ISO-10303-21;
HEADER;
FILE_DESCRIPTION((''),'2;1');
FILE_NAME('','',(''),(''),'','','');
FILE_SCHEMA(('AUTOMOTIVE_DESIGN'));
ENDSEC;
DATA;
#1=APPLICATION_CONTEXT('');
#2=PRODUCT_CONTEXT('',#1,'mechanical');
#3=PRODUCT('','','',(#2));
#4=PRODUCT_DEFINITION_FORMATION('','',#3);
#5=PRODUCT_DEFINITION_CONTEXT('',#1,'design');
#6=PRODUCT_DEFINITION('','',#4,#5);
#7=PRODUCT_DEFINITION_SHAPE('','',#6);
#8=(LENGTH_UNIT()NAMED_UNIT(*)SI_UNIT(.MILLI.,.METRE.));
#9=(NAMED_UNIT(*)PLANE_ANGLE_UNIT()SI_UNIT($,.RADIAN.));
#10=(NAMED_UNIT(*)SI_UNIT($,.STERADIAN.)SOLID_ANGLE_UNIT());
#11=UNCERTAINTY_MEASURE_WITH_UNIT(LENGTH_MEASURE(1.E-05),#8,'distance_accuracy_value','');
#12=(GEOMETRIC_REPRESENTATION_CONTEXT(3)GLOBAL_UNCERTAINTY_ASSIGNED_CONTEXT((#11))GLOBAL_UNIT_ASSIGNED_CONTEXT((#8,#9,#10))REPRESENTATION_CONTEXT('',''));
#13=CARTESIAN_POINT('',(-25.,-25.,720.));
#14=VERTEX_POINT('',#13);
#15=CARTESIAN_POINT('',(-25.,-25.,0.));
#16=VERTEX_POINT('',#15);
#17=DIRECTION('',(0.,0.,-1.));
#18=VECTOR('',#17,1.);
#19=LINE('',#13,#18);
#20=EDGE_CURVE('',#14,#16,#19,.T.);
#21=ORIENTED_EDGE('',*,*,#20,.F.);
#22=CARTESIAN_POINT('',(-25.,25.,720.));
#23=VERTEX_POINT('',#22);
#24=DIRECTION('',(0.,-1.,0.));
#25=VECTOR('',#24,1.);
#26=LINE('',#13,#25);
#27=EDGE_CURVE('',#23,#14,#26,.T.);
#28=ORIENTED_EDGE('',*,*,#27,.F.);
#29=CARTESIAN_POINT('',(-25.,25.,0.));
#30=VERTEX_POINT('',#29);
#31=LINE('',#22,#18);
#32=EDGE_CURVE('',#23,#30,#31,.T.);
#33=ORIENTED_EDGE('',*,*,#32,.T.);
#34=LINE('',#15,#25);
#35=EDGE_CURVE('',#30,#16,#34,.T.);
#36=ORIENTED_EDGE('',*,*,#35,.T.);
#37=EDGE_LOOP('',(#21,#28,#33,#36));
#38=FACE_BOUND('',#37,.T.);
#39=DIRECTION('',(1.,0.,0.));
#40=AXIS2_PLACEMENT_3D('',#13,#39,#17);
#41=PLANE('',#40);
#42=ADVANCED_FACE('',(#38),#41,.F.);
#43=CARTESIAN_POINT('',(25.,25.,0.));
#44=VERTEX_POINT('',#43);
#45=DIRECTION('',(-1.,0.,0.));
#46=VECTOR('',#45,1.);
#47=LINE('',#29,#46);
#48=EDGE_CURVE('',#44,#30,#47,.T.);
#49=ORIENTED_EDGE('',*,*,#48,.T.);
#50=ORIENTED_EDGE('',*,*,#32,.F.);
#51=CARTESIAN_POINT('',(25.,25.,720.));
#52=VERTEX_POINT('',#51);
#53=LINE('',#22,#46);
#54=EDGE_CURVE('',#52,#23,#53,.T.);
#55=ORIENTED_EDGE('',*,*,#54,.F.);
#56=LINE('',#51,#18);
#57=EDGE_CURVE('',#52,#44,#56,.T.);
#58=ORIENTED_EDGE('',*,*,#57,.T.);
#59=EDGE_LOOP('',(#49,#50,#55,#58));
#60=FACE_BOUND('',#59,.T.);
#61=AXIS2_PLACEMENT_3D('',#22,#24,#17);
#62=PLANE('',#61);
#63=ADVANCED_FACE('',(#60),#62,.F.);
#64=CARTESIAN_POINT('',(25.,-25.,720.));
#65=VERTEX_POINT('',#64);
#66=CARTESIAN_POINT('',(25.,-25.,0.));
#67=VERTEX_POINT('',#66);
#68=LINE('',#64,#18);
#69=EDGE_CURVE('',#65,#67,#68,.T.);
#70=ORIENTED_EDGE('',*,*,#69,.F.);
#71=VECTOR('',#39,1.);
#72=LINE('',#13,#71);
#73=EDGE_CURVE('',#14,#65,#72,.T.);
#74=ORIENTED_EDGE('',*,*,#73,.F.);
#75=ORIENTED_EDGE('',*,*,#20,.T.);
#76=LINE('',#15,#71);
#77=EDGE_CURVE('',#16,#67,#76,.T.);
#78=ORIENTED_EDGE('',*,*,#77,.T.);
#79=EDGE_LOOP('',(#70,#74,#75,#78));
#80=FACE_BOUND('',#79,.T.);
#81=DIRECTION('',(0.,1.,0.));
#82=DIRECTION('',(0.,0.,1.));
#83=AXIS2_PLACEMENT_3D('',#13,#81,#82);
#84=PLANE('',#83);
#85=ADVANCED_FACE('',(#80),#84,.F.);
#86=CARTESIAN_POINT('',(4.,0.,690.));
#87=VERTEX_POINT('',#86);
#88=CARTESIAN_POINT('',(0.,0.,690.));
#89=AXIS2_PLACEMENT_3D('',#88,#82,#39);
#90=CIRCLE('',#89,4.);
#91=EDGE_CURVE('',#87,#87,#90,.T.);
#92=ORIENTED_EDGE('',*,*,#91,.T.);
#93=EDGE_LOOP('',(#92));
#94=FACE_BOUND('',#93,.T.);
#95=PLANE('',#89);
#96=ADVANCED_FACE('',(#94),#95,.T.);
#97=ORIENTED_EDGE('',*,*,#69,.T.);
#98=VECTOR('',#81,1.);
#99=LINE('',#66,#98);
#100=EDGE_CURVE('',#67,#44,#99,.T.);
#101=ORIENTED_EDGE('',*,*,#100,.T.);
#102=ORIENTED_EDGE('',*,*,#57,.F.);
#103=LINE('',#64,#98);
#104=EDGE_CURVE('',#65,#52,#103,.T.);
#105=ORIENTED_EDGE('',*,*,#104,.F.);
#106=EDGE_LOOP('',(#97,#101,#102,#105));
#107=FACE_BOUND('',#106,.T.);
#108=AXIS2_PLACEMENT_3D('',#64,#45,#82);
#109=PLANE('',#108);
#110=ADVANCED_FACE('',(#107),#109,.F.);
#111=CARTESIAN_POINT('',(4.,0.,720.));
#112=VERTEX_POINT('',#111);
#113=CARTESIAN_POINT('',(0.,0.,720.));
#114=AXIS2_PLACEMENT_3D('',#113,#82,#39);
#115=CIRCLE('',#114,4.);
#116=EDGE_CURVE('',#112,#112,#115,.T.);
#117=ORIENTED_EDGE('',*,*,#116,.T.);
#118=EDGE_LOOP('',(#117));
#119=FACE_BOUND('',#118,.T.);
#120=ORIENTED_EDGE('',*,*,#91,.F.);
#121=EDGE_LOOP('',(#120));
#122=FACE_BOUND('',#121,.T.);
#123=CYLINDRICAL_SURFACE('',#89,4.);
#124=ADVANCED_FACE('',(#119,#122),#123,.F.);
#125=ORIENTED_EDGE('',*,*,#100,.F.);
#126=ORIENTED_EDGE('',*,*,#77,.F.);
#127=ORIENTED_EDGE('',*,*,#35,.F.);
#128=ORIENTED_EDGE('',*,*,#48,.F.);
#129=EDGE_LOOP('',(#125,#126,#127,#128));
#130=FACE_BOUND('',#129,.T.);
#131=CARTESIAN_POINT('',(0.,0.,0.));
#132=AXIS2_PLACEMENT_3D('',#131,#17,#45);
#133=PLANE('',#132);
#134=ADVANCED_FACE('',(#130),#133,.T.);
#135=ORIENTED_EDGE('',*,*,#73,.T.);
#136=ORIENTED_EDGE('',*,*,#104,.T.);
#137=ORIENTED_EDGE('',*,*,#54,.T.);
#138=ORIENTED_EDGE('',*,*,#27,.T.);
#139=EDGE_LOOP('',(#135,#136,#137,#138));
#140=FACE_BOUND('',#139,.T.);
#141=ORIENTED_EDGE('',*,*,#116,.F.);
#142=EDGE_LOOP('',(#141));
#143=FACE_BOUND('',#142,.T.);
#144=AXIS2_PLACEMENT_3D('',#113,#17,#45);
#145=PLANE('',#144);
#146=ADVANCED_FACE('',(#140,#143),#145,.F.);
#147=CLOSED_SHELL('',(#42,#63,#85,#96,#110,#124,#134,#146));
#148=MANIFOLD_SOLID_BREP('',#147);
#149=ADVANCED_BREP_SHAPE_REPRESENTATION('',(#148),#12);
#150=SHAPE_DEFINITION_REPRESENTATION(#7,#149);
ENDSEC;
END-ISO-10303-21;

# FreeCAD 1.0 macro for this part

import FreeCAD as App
import Part
import Sketcher

V = App.Vector


def add_polygon(sketch, points):
    """Adds a closed chain of lines whose ends are joined by coincident constraints."""
    first, n = sketch.GeometryCount, len(points)
    for a, b in zip(points, points[1:] + points[:1]):
        sketch.addGeometry(Part.LineSegment(App.Vector(*a, 0), App.Vector(*b, 0)), False)
    for i in range(n):
        sketch.addConstraint(Sketcher.Constraint("Coincident", first + i, 2, first + (i + 1) % n, 1))

doc = App.newDocument("Part")
params = doc.addObject("Spreadsheet::Sheet", "Params")
for row, (alias, value) in enumerate([
    ("sketch1_width", "50 mm"),
    ("pad1_length", "720 mm"),
    ("sketch2_diameter", "8 mm"),
    ("pocket1_length", "30 mm"),
    ("sketch3_width", "50 mm"),
    ("pad2_length", "720 mm"),
    ("sketch4_diameter", "8 mm"),
    ("pocket2_length", "30 mm"),
], start=1):
    params.set(f"A{row}", alias)
    params.set(f"B{row}", "=" + value)
    params.setAlias(f"B{row}", alias)

body = doc.addObject("PartDesign::Body", "Body")

sketch1 = doc.addObject("Sketcher::SketchObject", "Sketch")
body.addObject(sketch1)
sketch1.AttachmentSupport = (doc.XY_Plane, [""])
sketch1.MapMode = "FlatFace"
add_polygon(sketch1, [(-25, 25), (-25, -25), (25, -25), (25, 25)])
sketch1.addConstraint(Sketcher.Constraint("Vertical", 0))
sketch1.addConstraint(Sketcher.Constraint("Horizontal", 1))
sketch1.addConstraint(Sketcher.Constraint("Vertical", 2))
sketch1.addConstraint(Sketcher.Constraint("Horizontal", 3))
sketch1.addConstraint(Sketcher.Constraint("Symmetric", 0, 2, 2, 2, -1, 1))
sketch1.addConstraint(Sketcher.Constraint("Equal", 3, 0))
sketch1.addConstraint(Sketcher.Constraint("DistanceX", 1, 1, 1, 2, 50.0))
sketch1.setExpression("Constraints[10]", "Params.sketch1_width")
pad1 = doc.addObject("PartDesign::Pad", "Pad")
body.addObject(pad1)
pad1.Profile = sketch1
pad1.setExpression("Length", "Params.pad1_length")

sketch2 = doc.addObject("Sketcher::SketchObject", "Sketch001")
body.addObject(sketch2)
sketch2.AttachmentSupport = (doc.XY_Plane, [""])
sketch2.MapMode = "FlatFace"
sketch2.AttachmentOffset = App.Placement(V(0, 0, 720), App.Rotation())
sketch2.addGeometry(Part.Circle(V(0, 0, 0), V(0, 0, 1), 4), False)
sketch2.addConstraint(Sketcher.Constraint("Coincident", 0, 3, -1, 1))
sketch2.addConstraint(Sketcher.Constraint("Diameter", 0, 8.0))
sketch2.setExpression("Constraints[1]", "Params.sketch2_diameter")
pocket1 = doc.addObject("PartDesign::Pocket", "Pocket")
body.addObject(pocket1)
pocket1.Profile = sketch2
pocket1.setExpression("Length", "Params.pocket1_length")

sketch3 = doc.addObject("Sketcher::SketchObject", "Sketch002")
body.addObject(sketch3)
sketch3.AttachmentSupport = (doc.XY_Plane, [""])
sketch3.MapMode = "FlatFace"
add_polygon(sketch3, [(-25, 25), (-25, -25), (25, -25), (25, 25)])
sketch3.addConstraint(Sketcher.Constraint("Vertical", 0))
sketch3.addConstraint(Sketcher.Constraint("Horizontal", 1))
sketch3.addConstraint(Sketcher.Constraint("Vertical", 2))
sketch3.addConstraint(Sketcher.Constraint("Horizontal", 3))
sketch3.addConstraint(Sketcher.Constraint("Symmetric", 0, 2, 2, 2, -1, 1))
sketch3.addConstraint(Sketcher.Constraint("Equal", 3, 0))
sketch3.addConstraint(Sketcher.Constraint("DistanceX", 1, 1, 1, 2, 50.0))
sketch3.setExpression("Constraints[10]", "Params.sketch3_width")
pad2 = doc.addObject("PartDesign::Pad", "Pad001")
body.addObject(pad2)
pad2.Profile = sketch3
pad2.setExpression("Length", "Params.pad2_length")

sketch4 = doc.addObject("Sketcher::SketchObject", "Sketch003")
body.addObject(sketch4)
sketch4.AttachmentSupport = (doc.XY_Plane, [""])
sketch4.MapMode = "FlatFace"
sketch4.AttachmentOffset = App.Placement(V(0, 0, 720), App.Rotation())
sketch4.addGeometry(Part.Circle(V(0, 0, 0), V(0, 0, 1), 4), False)
sketch4.addConstraint(Sketcher.Constraint("Coincident", 0, 3, -1, 1))
sketch4.addConstraint(Sketcher.Constraint("Diameter", 0, 8.0))
sketch4.setExpression("Constraints[1]", "Params.sketch4_diameter")
pocket2 = doc.addObject("PartDesign::Pocket", "Pocket001")
body.addObject(pocket2)
pocket2.Profile = sketch4
pocket2.setExpression("Length", "Params.pocket2_length")

doc.recompute()
